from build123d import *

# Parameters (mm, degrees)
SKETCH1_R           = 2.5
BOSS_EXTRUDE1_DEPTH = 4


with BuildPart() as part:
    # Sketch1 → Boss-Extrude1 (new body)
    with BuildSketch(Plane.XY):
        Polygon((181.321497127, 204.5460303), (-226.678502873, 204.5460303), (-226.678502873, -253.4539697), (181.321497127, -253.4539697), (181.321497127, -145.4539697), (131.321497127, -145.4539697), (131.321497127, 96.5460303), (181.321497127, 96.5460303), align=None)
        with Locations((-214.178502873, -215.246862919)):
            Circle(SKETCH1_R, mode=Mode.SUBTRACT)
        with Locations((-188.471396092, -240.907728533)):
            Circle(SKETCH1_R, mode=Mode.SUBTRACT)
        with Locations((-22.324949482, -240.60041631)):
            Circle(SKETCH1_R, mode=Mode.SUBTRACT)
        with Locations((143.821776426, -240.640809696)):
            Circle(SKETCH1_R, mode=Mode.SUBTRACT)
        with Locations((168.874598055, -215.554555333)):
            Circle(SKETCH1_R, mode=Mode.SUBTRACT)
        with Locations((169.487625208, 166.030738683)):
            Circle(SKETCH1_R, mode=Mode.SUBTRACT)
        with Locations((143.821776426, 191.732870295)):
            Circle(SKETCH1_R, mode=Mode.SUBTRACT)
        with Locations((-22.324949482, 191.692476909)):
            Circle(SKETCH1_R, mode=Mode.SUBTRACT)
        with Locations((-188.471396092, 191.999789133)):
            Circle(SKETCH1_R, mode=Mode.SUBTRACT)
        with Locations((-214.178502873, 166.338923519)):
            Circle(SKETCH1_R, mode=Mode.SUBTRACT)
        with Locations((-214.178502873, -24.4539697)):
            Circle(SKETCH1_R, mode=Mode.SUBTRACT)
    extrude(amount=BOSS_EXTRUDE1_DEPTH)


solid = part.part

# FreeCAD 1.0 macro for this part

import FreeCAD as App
import Part
import Sketcher

V = App.Vector


def add_polygon(sketch, points):
    """Adds a closed chain of lines whose ends are joined by coincident constraints."""
    first, n = sketch.GeometryCount, len(points)
    for a, b in zip(points, points[1:] + points[:1]):
        sketch.addGeometry(Part.LineSegment(App.Vector(*a, 0), App.Vector(*b, 0)), False)
    for i in range(n):
        sketch.addConstraint(Sketcher.Constraint("Coincident", first + i, 2, first + (i + 1) % n, 1))

doc = App.newDocument("Part")
body = doc.addObject("PartDesign::Body", "Body")

# Sketch on XY plane
sketch1 = body.newObject("Sketcher::SketchObject", "Sketch")
sketch1.AttachmentSupport = (doc.getObject("XY_Plane"), [""])
sketch1.MapMode = "FlatFace"
add_polygon(sketch1, [(181.321497, 204.54603), (-226.678503, 204.54603), (-226.678503, -253.45397), (181.321497, -253.45397), (181.321497, -145.45397), (131.321497, -145.45397), (131.321497, 96.54603), (181.321497, 96.54603)])  # lines 0-7
sketch1.addGeometry(Part.Circle(V(-188.471396, -240.907729, 0), V(0, 0, 1), 2.5), False)  # 8
sketch1.addGeometry(Part.Circle(V(-214.178503, -215.246863, 0), V(0, 0, 1), 2.5), False)  # 9
sketch1.addGeometry(Part.Circle(V(-22.324949, -240.600416, 0), V(0, 0, 1), 2.5), False)  # 10
sketch1.addGeometry(Part.Circle(V(143.821776, -240.64081, 0), V(0, 0, 1), 2.5), False)  # 11
sketch1.addGeometry(Part.Circle(V(168.874598, -215.554555, 0), V(0, 0, 1), 2.5), False)  # 12
sketch1.addGeometry(Part.Circle(V(-214.178503, -24.45397, 0), V(0, 0, 1), 2.5), False)  # 13
sketch1.addGeometry(Part.Circle(V(-214.178503, 166.338924, 0), V(0, 0, 1), 2.5), False)  # 14
sketch1.addGeometry(Part.Circle(V(-188.471396, 191.999789, 0), V(0, 0, 1), 2.5), False)  # 15
sketch1.addGeometry(Part.Circle(V(-22.324949, 191.692477, 0), V(0, 0, 1), 2.5), False)  # 16
sketch1.addGeometry(Part.Circle(V(169.487625, 166.030739, 0), V(0, 0, 1), 2.5), False)  # 17
sketch1.addGeometry(Part.Circle(V(143.821776, 191.73287, 0), V(0, 0, 1), 2.5), False)  # 18
sketch1.addConstraint([
    Sketcher.Constraint("Horizontal", 0),
    Sketcher.Constraint("Vertical", 1),
    Sketcher.Constraint("Horizontal", 2),
    Sketcher.Constraint("Vertical", 3),
    Sketcher.Constraint("Horizontal", 4),
    Sketcher.Constraint("Vertical", 5),
    Sketcher.Constraint("Horizontal", 6),
    Sketcher.Constraint("Vertical", 7),
    Sketcher.Constraint("Equal", 8, 9),
    Sketcher.Constraint("Equal", 9, 10),
    Sketcher.Constraint("Equal", 10, 11),
    Sketcher.Constraint("Equal", 11, 12),
    Sketcher.Constraint("Equal", 12, 13),
    Sketcher.Constraint("Equal", 13, 14),
    Sketcher.Constraint("Equal", 14, 15),
    Sketcher.Constraint("Equal", 15, 16),
    Sketcher.Constraint("Equal", 16, 17),
    Sketcher.Constraint("Equal", 17, 18),
    Sketcher.Constraint("Vertical", 9, 3, 13, 3),
    Sketcher.Constraint("Vertical", 13, 3, 14, 3),
    Sketcher.Constraint("Vertical", 8, 3, 15, 3),
    Sketcher.Constraint("Vertical", 10, 3, 16, 3),
    Sketcher.Constraint("Vertical", 11, 3, 18, 3),
    Sketcher.Constraint("Vertical", 3, 2, 6, 2),
    Sketcher.Constraint("Equal", 3, 7),
    Sketcher.Constraint("Diameter", 8, 5.0),
    Sketcher.Constraint("DistanceX", 0, 2, 0, 1, 408.0),
    Sketcher.Constraint("DistanceX", 4, 2, 4, 1, 50.0),
    Sketcher.Constraint("DistanceY", 1, 2, 1, 1, 458.0),
    Sketcher.Constraint("DistanceY", 3, 1, 3, 2, 108.0),
    Sketcher.Constraint("DistanceY", 13, 3, 0, 2, 229.0),
    Sketcher.Constraint("DistanceX", 0, 2, 14, 3, 12.5),
    Sketcher.Constraint("DistanceX", -1, 1, 12, 3, 168.874598),
    Sketcher.Constraint("DistanceX", 9, 3, 12, 3, 383.053101),
    Sketcher.Constraint("DistanceY", 8, 3, -1, 1, 240.907729),
    Sketcher.Constraint("DistanceX", 10, 3, -1, 1, 22.324949),
    Sketcher.Constraint("DistanceY", 11, 3, -1, 1, 240.64081),
    Sketcher.Constraint("DistanceY", 13, 3, -1, 1, 24.45397),
    Sketcher.Constraint("DistanceY", -1, 1, 15, 3, 191.999789),
    Sketcher.Constraint("DistanceY", -1, 1, 17, 3, 166.030739),
    Sketcher.Constraint("DistanceY", -1, 1, 18, 3, 191.73287),
    Sketcher.Constraint("DistanceX", 9, 3, 11, 3, 358.000279),
    Sketcher.Constraint("DistanceY", 10, 3, 12, 3, 25.045861),
    Sketcher.Constraint("DistanceY", 10, 3, 14, 3, 406.93934),
    Sketcher.Constraint("DistanceY", 17, 3, 16, 3, 25.661738),
    Sketcher.Constraint("DistanceX", 15, 3, 17, 3, 357.959021),
    Sketcher.Constraint("DistanceX", 14, 3, 17, 3, 383.666128),
    Sketcher.Constraint("DistanceY", 9, 3, -1, 1, 215.246863),
    Sketcher.Constraint("DistanceY", 10, 3, -1, 1, 240.600416),
])
pad1 = body.newObject("PartDesign::Pad", "Pad")
pad1.Profile = sketch1
pad1.Length = 4

doc.recompute()
